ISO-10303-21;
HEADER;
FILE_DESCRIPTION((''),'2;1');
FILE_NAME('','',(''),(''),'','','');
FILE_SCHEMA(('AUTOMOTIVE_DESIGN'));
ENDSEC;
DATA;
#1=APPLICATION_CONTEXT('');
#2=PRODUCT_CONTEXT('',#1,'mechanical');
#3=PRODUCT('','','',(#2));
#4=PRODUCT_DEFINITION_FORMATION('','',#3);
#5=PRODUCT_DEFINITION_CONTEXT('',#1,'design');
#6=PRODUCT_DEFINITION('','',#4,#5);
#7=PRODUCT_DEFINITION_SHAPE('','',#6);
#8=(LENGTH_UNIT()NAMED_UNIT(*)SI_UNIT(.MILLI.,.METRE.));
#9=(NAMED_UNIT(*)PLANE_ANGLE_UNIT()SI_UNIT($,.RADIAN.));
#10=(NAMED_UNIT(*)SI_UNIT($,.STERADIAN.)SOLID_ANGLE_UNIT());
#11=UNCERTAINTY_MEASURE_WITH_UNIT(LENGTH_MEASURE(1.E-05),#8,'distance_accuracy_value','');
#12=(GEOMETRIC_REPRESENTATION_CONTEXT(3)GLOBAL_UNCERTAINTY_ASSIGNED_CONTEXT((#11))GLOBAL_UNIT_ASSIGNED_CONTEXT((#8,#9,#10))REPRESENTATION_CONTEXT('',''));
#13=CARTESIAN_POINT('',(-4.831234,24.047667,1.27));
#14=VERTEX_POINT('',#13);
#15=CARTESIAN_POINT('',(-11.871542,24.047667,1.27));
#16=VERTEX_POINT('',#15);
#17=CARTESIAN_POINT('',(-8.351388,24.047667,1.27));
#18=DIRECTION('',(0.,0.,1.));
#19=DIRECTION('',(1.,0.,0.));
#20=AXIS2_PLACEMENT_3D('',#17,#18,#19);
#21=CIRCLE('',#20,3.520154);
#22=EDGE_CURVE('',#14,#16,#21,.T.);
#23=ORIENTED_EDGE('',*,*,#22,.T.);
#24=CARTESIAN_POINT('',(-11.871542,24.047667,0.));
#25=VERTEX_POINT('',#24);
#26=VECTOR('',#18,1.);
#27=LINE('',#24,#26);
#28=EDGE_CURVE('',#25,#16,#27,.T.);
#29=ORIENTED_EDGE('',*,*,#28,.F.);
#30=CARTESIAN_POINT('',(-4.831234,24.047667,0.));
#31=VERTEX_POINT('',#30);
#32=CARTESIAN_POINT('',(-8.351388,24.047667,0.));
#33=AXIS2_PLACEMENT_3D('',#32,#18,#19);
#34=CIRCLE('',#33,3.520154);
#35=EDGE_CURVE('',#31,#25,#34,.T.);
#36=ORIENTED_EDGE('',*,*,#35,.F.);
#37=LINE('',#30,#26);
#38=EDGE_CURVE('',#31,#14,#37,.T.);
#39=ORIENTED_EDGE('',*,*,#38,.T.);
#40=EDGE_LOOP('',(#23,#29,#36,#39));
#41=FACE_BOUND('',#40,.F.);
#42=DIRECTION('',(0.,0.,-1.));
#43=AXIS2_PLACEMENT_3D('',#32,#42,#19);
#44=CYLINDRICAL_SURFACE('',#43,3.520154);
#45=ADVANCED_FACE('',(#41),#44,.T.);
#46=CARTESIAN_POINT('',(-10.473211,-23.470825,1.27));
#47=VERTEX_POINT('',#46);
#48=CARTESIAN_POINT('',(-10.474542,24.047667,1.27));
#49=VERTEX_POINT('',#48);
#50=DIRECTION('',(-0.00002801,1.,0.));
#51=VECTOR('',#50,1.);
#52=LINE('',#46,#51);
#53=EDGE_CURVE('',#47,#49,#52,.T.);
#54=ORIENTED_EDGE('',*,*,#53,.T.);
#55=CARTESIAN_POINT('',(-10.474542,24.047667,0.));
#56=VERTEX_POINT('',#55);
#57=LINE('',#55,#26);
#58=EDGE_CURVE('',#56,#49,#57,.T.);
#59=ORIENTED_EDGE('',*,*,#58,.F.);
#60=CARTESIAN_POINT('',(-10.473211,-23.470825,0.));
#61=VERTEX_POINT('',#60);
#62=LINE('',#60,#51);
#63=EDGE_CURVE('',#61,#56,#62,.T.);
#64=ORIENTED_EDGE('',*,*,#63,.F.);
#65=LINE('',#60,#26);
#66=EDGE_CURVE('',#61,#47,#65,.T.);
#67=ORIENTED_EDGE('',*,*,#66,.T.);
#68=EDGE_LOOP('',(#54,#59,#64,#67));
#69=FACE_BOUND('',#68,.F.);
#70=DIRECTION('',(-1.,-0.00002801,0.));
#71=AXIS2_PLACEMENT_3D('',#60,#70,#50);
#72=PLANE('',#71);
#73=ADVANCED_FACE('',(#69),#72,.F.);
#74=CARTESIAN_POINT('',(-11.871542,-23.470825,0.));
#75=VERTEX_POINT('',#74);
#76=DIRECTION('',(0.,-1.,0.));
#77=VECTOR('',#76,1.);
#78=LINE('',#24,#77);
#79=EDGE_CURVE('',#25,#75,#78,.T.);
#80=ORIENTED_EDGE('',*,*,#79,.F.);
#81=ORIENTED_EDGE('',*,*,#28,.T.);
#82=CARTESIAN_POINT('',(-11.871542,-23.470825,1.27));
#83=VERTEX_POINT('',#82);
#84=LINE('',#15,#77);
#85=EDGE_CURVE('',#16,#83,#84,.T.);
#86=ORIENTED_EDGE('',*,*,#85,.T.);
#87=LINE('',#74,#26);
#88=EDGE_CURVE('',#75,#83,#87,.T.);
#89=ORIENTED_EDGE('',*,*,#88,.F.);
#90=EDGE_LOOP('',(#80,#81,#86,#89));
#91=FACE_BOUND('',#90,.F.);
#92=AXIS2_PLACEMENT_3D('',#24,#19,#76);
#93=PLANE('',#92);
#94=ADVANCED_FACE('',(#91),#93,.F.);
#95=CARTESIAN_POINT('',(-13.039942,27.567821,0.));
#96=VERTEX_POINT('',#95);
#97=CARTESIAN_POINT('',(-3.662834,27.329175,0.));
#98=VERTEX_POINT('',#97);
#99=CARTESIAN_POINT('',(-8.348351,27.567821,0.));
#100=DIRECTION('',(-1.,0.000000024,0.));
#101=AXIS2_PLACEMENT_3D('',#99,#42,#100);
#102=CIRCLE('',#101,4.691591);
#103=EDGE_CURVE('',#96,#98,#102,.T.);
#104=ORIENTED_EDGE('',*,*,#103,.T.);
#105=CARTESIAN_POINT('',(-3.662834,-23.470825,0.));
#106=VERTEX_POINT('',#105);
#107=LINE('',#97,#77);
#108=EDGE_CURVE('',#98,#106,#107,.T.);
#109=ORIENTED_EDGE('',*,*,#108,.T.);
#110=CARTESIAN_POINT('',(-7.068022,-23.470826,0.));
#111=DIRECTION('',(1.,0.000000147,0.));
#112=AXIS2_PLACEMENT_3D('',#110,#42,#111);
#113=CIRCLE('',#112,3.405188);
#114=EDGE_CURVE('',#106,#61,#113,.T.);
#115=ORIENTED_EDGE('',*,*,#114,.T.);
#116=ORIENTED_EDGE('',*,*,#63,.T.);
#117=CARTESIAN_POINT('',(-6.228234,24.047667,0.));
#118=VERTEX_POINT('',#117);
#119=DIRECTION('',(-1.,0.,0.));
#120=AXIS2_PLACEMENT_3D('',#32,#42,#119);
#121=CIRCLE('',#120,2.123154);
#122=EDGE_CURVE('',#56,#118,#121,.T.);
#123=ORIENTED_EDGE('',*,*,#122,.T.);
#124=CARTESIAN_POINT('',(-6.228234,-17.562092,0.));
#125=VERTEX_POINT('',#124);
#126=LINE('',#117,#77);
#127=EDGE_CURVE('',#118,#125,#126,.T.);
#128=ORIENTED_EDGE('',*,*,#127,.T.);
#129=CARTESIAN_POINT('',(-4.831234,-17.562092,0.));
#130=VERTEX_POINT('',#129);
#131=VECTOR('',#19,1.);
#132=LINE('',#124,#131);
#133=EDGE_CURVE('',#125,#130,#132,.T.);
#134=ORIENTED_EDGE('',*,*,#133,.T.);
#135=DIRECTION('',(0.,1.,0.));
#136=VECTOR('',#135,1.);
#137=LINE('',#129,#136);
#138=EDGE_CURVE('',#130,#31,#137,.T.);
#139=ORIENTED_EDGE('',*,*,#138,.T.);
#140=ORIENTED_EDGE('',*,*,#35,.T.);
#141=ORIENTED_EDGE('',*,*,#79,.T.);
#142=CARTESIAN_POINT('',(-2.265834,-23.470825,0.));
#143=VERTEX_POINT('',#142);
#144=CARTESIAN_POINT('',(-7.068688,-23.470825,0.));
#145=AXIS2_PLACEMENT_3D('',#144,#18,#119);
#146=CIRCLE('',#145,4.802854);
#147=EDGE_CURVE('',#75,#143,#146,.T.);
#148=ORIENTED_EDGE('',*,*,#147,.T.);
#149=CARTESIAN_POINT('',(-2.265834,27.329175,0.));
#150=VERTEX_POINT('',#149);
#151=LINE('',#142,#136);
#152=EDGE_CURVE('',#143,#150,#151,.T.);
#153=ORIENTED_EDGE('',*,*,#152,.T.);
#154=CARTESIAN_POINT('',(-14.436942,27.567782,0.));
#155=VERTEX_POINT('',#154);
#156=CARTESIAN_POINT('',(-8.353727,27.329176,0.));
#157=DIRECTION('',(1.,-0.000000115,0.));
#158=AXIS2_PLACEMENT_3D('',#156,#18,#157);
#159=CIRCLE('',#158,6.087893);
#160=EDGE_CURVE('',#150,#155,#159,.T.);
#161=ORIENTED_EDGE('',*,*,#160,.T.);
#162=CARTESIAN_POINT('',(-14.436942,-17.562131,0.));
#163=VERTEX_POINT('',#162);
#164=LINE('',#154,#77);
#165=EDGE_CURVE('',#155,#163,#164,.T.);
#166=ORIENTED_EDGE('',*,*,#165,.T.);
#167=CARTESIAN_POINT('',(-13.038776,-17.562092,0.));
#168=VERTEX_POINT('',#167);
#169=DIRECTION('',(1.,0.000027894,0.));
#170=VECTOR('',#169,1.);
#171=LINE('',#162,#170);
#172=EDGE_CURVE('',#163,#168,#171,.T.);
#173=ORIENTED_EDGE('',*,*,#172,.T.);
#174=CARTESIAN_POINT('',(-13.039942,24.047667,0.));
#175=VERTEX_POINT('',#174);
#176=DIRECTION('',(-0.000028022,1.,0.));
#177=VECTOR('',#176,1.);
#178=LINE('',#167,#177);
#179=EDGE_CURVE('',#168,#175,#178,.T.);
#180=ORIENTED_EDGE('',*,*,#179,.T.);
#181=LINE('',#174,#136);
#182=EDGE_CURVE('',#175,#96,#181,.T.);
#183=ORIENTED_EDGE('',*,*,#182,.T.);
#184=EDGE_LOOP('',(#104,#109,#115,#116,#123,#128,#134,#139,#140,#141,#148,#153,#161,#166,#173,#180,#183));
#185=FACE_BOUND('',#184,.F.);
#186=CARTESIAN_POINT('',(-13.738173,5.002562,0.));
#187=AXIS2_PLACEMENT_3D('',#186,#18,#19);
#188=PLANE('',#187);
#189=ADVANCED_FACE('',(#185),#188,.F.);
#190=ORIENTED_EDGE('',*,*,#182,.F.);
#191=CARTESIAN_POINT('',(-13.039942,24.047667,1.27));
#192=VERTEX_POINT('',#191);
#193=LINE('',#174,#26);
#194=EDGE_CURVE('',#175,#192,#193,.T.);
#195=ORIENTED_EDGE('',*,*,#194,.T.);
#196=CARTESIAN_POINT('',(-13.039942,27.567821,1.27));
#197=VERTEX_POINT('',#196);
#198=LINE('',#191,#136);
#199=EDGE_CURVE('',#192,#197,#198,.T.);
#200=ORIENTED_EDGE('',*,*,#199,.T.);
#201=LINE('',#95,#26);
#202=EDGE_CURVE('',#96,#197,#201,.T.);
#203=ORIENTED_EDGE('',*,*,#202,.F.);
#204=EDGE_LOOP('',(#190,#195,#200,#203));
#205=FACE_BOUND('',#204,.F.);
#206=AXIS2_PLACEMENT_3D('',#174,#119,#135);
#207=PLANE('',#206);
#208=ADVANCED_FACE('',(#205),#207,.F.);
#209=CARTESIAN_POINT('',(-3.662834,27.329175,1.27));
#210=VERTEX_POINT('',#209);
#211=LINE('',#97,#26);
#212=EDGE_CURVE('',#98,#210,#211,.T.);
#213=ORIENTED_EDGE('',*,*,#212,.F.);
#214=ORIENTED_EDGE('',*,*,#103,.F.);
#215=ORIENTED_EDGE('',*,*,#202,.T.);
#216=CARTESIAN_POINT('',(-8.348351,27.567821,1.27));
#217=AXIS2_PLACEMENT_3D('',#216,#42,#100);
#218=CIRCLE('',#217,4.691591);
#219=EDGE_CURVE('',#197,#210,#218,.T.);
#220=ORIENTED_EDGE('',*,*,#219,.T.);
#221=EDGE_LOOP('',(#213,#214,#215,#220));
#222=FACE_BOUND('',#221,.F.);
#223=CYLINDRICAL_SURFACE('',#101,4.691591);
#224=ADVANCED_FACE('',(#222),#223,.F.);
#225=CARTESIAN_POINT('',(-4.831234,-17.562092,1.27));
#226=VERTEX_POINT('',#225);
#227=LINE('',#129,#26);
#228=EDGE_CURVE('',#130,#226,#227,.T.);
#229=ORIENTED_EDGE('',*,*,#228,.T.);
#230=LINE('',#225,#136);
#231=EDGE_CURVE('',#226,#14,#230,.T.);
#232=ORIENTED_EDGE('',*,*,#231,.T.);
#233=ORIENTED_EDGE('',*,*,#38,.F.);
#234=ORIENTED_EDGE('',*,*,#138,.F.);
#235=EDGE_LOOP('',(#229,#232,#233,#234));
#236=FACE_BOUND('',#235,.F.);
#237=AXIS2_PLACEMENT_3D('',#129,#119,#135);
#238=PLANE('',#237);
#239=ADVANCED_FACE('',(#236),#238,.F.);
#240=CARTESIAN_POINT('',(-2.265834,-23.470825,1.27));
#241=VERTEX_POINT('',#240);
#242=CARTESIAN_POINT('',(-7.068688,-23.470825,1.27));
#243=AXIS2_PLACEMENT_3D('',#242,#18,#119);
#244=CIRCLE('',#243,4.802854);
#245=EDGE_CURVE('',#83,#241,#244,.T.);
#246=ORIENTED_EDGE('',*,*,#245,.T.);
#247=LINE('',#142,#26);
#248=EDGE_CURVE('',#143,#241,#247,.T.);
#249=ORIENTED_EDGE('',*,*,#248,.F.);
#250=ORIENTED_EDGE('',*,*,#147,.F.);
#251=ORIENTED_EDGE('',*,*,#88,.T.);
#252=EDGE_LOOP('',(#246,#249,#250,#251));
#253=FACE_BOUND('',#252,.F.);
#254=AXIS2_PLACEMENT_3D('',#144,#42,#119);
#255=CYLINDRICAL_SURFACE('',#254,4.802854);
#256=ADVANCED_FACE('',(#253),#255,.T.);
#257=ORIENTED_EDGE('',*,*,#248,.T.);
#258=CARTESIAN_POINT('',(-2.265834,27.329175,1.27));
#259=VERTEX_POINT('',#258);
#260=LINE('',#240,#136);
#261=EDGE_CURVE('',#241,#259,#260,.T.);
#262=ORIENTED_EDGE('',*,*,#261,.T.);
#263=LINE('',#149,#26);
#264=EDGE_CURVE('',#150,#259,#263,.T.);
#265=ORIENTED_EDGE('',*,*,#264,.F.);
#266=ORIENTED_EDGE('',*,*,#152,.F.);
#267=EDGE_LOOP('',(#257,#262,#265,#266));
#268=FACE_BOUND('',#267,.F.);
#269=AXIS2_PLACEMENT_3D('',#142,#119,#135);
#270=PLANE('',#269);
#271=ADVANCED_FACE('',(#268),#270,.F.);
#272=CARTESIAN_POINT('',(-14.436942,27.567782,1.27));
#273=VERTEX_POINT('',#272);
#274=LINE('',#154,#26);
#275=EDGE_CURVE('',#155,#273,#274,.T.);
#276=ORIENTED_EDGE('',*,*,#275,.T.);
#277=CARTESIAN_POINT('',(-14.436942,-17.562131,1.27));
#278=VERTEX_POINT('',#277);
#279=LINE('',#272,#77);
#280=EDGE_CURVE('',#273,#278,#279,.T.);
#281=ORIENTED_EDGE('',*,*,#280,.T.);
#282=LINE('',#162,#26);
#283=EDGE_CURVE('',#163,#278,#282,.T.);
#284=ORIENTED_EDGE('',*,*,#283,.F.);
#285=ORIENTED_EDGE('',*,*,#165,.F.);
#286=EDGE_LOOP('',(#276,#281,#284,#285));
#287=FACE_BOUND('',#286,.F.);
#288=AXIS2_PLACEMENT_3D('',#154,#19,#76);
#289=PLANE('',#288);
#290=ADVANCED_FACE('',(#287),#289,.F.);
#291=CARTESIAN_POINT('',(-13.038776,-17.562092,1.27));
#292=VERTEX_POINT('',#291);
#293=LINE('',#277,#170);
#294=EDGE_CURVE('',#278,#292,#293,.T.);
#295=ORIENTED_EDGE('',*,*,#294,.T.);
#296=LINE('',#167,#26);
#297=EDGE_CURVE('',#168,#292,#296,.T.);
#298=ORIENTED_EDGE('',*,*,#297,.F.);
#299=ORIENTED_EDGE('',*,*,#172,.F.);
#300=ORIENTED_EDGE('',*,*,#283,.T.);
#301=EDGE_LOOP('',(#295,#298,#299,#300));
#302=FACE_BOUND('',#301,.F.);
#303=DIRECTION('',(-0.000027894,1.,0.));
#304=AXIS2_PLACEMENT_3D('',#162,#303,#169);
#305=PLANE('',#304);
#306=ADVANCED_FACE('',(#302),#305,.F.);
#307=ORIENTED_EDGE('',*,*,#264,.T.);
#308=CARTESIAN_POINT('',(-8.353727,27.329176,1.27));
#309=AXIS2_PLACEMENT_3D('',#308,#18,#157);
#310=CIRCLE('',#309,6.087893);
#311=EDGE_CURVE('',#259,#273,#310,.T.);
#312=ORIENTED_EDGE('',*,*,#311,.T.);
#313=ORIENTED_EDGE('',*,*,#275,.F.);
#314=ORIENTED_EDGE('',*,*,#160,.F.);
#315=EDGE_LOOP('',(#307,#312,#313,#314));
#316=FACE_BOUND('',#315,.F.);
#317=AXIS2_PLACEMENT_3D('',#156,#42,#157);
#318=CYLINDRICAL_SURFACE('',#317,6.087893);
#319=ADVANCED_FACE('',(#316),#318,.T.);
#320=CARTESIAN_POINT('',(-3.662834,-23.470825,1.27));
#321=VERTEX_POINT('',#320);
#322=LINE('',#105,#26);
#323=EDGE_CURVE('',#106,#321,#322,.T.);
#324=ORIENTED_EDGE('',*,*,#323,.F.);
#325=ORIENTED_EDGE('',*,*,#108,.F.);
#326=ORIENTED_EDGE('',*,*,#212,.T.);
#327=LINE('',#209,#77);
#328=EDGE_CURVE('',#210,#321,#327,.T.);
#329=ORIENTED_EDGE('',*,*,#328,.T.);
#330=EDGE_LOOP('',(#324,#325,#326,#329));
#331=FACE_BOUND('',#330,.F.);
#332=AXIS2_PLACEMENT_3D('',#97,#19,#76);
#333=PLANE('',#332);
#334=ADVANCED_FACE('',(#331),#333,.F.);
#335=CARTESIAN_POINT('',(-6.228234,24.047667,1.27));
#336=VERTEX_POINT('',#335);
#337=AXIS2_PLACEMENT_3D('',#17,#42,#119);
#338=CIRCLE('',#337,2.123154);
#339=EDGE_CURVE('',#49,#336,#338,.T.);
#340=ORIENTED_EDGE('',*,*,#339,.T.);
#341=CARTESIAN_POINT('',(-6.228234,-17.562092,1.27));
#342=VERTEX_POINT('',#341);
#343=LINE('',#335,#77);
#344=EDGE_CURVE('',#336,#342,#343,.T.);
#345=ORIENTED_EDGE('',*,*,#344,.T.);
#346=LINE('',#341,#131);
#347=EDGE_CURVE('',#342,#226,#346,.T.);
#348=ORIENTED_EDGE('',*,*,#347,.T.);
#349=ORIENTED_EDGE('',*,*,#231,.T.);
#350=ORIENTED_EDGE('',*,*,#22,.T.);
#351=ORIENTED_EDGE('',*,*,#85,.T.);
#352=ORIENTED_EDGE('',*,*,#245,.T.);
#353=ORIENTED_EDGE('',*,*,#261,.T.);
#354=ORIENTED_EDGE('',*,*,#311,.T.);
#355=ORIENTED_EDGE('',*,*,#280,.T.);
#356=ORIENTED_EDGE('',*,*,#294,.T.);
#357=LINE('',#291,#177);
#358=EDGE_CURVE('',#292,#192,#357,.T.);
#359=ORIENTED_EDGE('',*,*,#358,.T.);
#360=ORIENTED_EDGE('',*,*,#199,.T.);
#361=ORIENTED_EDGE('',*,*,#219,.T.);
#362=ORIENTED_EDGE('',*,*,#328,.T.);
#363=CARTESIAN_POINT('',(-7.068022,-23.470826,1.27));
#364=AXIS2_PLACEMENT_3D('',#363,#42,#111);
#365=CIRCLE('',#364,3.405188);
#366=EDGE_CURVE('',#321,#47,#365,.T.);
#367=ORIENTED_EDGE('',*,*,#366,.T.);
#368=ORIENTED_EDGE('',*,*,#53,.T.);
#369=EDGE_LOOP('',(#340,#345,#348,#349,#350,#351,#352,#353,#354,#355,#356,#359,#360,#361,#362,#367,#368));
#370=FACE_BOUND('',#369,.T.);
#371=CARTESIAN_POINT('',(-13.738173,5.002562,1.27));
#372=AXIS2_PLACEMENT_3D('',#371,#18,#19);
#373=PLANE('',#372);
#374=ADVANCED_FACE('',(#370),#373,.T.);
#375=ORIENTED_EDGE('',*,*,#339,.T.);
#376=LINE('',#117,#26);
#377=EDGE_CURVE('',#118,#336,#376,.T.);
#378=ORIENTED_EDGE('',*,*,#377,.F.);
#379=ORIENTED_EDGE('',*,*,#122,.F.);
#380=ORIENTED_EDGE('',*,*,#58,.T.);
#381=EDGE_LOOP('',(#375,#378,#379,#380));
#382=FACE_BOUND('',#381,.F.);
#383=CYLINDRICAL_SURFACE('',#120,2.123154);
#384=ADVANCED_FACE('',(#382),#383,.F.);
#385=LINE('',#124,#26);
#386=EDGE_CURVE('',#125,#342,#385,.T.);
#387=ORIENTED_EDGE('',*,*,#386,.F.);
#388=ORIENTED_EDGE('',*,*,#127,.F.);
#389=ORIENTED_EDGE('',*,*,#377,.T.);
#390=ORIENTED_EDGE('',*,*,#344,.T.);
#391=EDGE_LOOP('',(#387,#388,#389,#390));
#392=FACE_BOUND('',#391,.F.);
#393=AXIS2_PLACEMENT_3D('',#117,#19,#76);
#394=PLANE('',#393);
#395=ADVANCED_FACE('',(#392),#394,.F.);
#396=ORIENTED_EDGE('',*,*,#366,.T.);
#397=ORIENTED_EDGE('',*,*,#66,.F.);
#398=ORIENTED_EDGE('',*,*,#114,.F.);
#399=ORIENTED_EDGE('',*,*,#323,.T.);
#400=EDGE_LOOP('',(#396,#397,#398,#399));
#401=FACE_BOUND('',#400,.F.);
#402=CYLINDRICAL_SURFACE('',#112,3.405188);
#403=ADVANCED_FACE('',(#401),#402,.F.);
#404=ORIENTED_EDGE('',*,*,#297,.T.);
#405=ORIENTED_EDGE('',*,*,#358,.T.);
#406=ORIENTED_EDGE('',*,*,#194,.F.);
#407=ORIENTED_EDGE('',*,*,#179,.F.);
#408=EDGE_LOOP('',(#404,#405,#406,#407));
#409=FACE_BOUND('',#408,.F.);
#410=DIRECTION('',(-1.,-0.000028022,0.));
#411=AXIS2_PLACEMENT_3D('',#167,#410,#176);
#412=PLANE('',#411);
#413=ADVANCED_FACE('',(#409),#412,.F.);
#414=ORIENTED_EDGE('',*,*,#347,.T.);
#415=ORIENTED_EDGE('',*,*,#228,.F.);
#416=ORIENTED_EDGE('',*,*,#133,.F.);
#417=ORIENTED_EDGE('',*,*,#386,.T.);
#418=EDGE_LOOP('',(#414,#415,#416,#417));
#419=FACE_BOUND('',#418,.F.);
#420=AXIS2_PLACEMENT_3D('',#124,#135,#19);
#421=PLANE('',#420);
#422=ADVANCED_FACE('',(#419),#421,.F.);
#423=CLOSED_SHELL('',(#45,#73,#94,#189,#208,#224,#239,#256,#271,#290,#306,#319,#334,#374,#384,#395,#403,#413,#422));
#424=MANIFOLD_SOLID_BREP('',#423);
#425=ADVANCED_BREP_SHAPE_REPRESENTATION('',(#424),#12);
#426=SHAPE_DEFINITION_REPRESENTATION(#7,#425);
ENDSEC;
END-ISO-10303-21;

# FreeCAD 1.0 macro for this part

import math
import FreeCAD as App
import Part
import Sketcher

V = App.Vector
Q = App.Units.Quantity

doc = App.newDocument("Part")
body = doc.addObject("PartDesign::Body", "Body")

sketch1 = doc.addObject("Sketcher::SketchObject", "Sketch")
body.addObject(sketch1)
sketch1.AttachmentSupport = (doc.XY_Plane, [""])
sketch1.MapMode = "FlatFace"
sketch1.addGeometry(Part.LineSegment(V(-13, 24, 0), V(-13, 27.6, 0)), False)
sketch1.addGeometry(Part.ArcOfCircle(Part.Circle(V(-8.3, 27.6, 0), V(0, 0, 1), 4.7), math.radians(-3), math.radians(180)), False)
sketch1.addGeometry(Part.LineSegment(V(-3.7, 27.3, 0), V(-3.7, -23.5, 0)), False)
sketch1.addGeometry(Part.ArcOfCircle(Part.Circle(V(-7.1, -23.5, 0), V(0, 0, 1), 3.4), math.radians(180), math.radians(360)), False)
sketch1.addGeometry(Part.LineSegment(V(-10.5, -23.5, 0), V(-10.5, 24, 0)), False)
sketch1.addGeometry(Part.ArcOfCircle(Part.Circle(V(-8.4, 24, 0), V(0, 0, 1), 2.1), math.radians(0), math.radians(180)), False)
sketch1.addGeometry(Part.LineSegment(V(-6.2, 24, 0), V(-6.2, -17.6, 0)), False)
sketch1.addGeometry(Part.LineSegment(V(-6.2, -17.6, 0), V(-4.8, -17.6, 0)), False)
sketch1.addGeometry(Part.LineSegment(V(-4.8, -17.6, 0), V(-4.8, 24, 0)), False)
sketch1.addGeometry(Part.ArcOfCircle(Part.Circle(V(-8.4, 24, 0), V(0, 0, 1), 3.5), math.radians(0), math.radians(180)), False)
sketch1.addGeometry(Part.LineSegment(V(-11.9, 24, 0), V(-11.9, -23.5, 0)), False)
sketch1.addGeometry(Part.ArcOfCircle(Part.Circle(V(-7.1, -23.5, 0), V(0, 0, 1), 4.8), math.radians(180), math.radians(360)), False)
sketch1.addGeometry(Part.LineSegment(V(-2.3, -23.5, 0), V(-2.3, 27.3, 0)), False)
sketch1.addGeometry(Part.ArcOfCircle(Part.Circle(V(-8.4, 27.3, 0), V(0, 0, 1), 6.1), math.radians(0), math.radians(178)), False)
sketch1.addGeometry(Part.LineSegment(V(-14.4, 27.6, 0), V(-14.4, -17.6, 0)), False)
sketch1.addGeometry(Part.LineSegment(V(-14.4, -17.6, 0), V(-13, -17.6, 0)), False)
sketch1.addGeometry(Part.LineSegment(V(-13, -17.6, 0), V(-13, 24, 0)), False)
sketch1.addConstraint(Sketcher.Constraint("Tangent", 0, 2, 1, 2))
sketch1.addConstraint(Sketcher.Constraint("Coincident", 1, 1, 2, 1))
sketch1.addConstraint(Sketcher.Constraint("Tangent", 2, 2, 3, 2))
sketch1.addConstraint(Sketcher.Constraint("Coincident", 3, 1, 4, 1))
sketch1.addConstraint(Sketcher.Constraint("Coincident", 4, 2, 5, 2))
sketch1.addConstraint(Sketcher.Constraint("Tangent", 5, 1, 6, 1))
sketch1.addConstraint(Sketcher.Constraint("Coincident", 6, 2, 7, 1))
sketch1.addConstraint(Sketcher.Constraint("Coincident", 7, 2, 8, 1))
sketch1.addConstraint(Sketcher.Constraint("Tangent", 8, 2, 9, 1))
sketch1.addConstraint(Sketcher.Constraint("Tangent", 9, 2, 10, 1))
sketch1.addConstraint(Sketcher.Constraint("Tangent", 10, 2, 11, 1))
sketch1.addConstraint(Sketcher.Constraint("Tangent", 11, 2, 12, 1))
sketch1.addConstraint(Sketcher.Constraint("Tangent", 12, 2, 13, 1))
sketch1.addConstraint(Sketcher.Constraint("Coincident", 13, 2, 14, 1))
sketch1.addConstraint(Sketcher.Constraint("Coincident", 14, 2, 15, 1))
sketch1.addConstraint(Sketcher.Constraint("Coincident", 15, 2, 16, 1))
sketch1.addConstraint(Sketcher.Constraint("Coincident", 16, 2, 0, 1))
sketch1.addConstraint(Sketcher.Constraint("Vertical", 0))
sketch1.addConstraint(Sketcher.Constraint("Vertical", 2))
sketch1.addConstraint(Sketcher.Constraint("Vertical", 6))
sketch1.addConstraint(Sketcher.Constraint("Horizontal", 7))
sketch1.addConstraint(Sketcher.Constraint("Vertical", 8))
sketch1.addConstraint(Sketcher.Constraint("Vertical", 10))
sketch1.addConstraint(Sketcher.Constraint("Vertical", 12))
sketch1.addConstraint(Sketcher.Constraint("Vertical", 14))
sketch1.addConstraint(Sketcher.Constraint("Coincident", 9, 3, 5, 3))
sketch1.addConstraint(Sketcher.Constraint("Perpendicular", 4, 15))
sketch1.addConstraint(Sketcher.Constraint("Perpendicular", 15, 16))
sketch1.addConstraint(Sketcher.Constraint("Horizontal", 3, 3, 11, 3))
sketch1.addConstraint(Sketcher.Constraint("Horizontal", 13, 3, 1, 1))
sketch1.addConstraint(Sketcher.Constraint("Horizontal", 2, 2, 3, 1))
sketch1.addConstraint(Sketcher.Constraint("Horizontal", 9, 3, 4, 2))
sketch1.addConstraint(Sketcher.Constraint("Horizontal", 7, 2, 15, 2))
sketch1.addConstraint(Sketcher.Constraint("Horizontal", 9, 2, 16, 2))
sketch1.addConstraint(Sketcher.Constraint("DistanceY", 2, 2, 2, 1, Q("2 in")))
sketch1.addConstraint(Sketcher.Constraint("DistanceX", 7, 1, 7, 2, Q("0.055 in")))
sketch1.addConstraint(Sketcher.Constraint("Radius", 1, 4.691591))
sketch1.addConstraint(Sketcher.Constraint("Radius", 3, 3.405188))
sketch1.addConstraint(Sketcher.Constraint("DistanceX", 0, 2, 4, 2, Q("0.101 in")))
sketch1.addConstraint(Sketcher.Constraint("DistanceX", 5, 1, 1, 1, Q("0.101 in")))
sketch1.addConstraint(Sketcher.Constraint("DistanceX", 2, 2, 11, 2, Q("0.055 in")))
sketch1.addConstraint(Sketcher.Constraint("DistanceX", 13, 2, 0, 2, Q("0.055 in")))
sketch1.addConstraint(Sketcher.Constraint("Radius", 5, 2.123154))
sketch1.addConstraint(Sketcher.Constraint("Radius", 13, 6.087893))
sketch1.addConstraint(Sketcher.Constraint("DistanceY", 6, 2, 6, 1, 41.609759))
sketch1.addConstraint(Sketcher.Constraint("DistanceY", 0, 1, 0, 2, 3.520154))
sketch1.addConstraint(Sketcher.Constraint("DistanceX", 1, 3, -1, 1, 8.348351))
sketch1.addConstraint(Sketcher.Constraint("DistanceY", -1, 1, 1, 3, 27.567821))
pad1 = doc.addObject("PartDesign::Pad", "Pad")
body.addObject(pad1)
pad1.Profile = sketch1
pad1.Length = Q("0.05 in")

doc.recompute()
